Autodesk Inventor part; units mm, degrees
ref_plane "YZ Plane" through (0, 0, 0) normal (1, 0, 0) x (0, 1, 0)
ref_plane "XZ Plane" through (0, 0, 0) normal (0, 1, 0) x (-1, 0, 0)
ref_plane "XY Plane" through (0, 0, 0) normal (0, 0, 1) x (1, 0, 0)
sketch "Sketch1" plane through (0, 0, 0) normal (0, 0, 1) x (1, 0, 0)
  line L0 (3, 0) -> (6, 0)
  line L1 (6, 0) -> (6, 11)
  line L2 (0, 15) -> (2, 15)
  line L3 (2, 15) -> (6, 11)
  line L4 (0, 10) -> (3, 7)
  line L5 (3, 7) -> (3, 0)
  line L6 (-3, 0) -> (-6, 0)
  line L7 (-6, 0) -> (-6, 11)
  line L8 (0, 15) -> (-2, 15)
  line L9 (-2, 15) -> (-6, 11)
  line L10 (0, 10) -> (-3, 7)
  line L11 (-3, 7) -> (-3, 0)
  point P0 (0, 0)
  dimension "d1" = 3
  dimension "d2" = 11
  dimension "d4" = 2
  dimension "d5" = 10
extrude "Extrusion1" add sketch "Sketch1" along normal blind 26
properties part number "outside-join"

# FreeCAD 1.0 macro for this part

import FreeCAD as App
import Part
import Sketcher

V = App.Vector
Q = App.Units.Quantity


def add_polygon(sketch, points):
    """Adds a closed chain of lines whose ends are joined by coincident constraints."""
    first, n = sketch.GeometryCount, len(points)
    for a, b in zip(points, points[1:] + points[:1]):
        sketch.addGeometry(Part.LineSegment(App.Vector(*a, 0), App.Vector(*b, 0)), False)
    for i in range(n):
        sketch.addConstraint(Sketcher.Constraint("Coincident", first + i, 2, first + (i + 1) % n, 1))

doc = App.newDocument("Part")
params = doc.addObject("Spreadsheet::Sheet", "Params")
for row, (alias, value) in enumerate([
    ("sketch1_width", "3 mm"),
    ("sketch1_height", "11 mm"),
    ("pad1_length", "26 mm"),
], start=1):
    params.set(f"A{row}", alias)
    params.set(f"B{row}", "=" + value)
    params.setAlias(f"B{row}", alias)

body = doc.addObject("PartDesign::Body", "Body")

# Sketch on XY plane
sketch1 = body.newObject("Sketcher::SketchObject", "Sketch")
sketch1.AttachmentSupport = (doc.getObject("XY_Plane"), [""])
sketch1.MapMode = "FlatFace"
add_polygon(sketch1, [(3, 7), (3, 0), (6, 0), (6, 11), (2, 15), (-2, 15), (-6, 11), (-6, 0), (-3, 0), (-3, 7), (0, 10)])  # lines 0-10
sketch1.addConstraint(Sketcher.Constraint("Vertical", 0))
sketch1.addConstraint(Sketcher.Constraint("Horizontal", 1))
sketch1.addConstraint(Sketcher.Constraint("Vertical", 2))
sketch1.addConstraint(Sketcher.Constraint("Horizontal", 4))
sketch1.addConstraint(Sketcher.Constraint("Vertical", 6))
sketch1.addConstraint(Sketcher.Constraint("Horizontal", 7))
sketch1.addConstraint(Sketcher.Constraint("Vertical", 8))
sketch1.addConstraint(Sketcher.Constraint("Symmetric", 1, 2, 6, 2, -1, 1))
sketch1.addConstraint(Sketcher.Constraint("Symmetric", 0, 2, 7, 2, -2))
sketch1.addConstraint(Sketcher.Constraint("PointOnObject", 9, 2, -2))
sketch1.addConstraint(Sketcher.Constraint("Perpendicular", 3, 5))
sketch1.addConstraint(Sketcher.Constraint("Parallel", 5, 9))
sketch1.addConstraint(Sketcher.Constraint("Perpendicular", 9, 10))
sketch1.addConstraint(Sketcher.Constraint("Horizontal", 2, 2, 5, 2))
sketch1.addConstraint(Sketcher.Constraint("Horizontal", 8, 2, 10, 2))
sketch1.addConstraint(Sketcher.Constraint("DistanceX", 1, 1, 1, 2, Q("3 mm")))
sketch1.addConstraint(Sketcher.Constraint("DistanceY", 2, 1, 2, 2, Q("11 mm")))
sketch1.addConstraint(Sketcher.Constraint("DistanceX", -1, 1, 0, 2, Q("3 mm")))
sketch1.addConstraint(Sketcher.Constraint("DistanceX", -1, 1, 3, 2, Q("2 mm")))
sketch1.addConstraint(Sketcher.Constraint("DistanceY", -1, 1, 9, 2, Q("10 mm")))
sketch1.setExpression("Constraints[26]", "Params.sketch1_width")
sketch1.setExpression("Constraints[27]", "Params.sketch1_height")
pad1 = body.newObject("PartDesign::Pad", "Pad")
pad1.Profile = sketch1
pad1.setExpression("Length", "Params.pad1_length")

doc.recompute()
